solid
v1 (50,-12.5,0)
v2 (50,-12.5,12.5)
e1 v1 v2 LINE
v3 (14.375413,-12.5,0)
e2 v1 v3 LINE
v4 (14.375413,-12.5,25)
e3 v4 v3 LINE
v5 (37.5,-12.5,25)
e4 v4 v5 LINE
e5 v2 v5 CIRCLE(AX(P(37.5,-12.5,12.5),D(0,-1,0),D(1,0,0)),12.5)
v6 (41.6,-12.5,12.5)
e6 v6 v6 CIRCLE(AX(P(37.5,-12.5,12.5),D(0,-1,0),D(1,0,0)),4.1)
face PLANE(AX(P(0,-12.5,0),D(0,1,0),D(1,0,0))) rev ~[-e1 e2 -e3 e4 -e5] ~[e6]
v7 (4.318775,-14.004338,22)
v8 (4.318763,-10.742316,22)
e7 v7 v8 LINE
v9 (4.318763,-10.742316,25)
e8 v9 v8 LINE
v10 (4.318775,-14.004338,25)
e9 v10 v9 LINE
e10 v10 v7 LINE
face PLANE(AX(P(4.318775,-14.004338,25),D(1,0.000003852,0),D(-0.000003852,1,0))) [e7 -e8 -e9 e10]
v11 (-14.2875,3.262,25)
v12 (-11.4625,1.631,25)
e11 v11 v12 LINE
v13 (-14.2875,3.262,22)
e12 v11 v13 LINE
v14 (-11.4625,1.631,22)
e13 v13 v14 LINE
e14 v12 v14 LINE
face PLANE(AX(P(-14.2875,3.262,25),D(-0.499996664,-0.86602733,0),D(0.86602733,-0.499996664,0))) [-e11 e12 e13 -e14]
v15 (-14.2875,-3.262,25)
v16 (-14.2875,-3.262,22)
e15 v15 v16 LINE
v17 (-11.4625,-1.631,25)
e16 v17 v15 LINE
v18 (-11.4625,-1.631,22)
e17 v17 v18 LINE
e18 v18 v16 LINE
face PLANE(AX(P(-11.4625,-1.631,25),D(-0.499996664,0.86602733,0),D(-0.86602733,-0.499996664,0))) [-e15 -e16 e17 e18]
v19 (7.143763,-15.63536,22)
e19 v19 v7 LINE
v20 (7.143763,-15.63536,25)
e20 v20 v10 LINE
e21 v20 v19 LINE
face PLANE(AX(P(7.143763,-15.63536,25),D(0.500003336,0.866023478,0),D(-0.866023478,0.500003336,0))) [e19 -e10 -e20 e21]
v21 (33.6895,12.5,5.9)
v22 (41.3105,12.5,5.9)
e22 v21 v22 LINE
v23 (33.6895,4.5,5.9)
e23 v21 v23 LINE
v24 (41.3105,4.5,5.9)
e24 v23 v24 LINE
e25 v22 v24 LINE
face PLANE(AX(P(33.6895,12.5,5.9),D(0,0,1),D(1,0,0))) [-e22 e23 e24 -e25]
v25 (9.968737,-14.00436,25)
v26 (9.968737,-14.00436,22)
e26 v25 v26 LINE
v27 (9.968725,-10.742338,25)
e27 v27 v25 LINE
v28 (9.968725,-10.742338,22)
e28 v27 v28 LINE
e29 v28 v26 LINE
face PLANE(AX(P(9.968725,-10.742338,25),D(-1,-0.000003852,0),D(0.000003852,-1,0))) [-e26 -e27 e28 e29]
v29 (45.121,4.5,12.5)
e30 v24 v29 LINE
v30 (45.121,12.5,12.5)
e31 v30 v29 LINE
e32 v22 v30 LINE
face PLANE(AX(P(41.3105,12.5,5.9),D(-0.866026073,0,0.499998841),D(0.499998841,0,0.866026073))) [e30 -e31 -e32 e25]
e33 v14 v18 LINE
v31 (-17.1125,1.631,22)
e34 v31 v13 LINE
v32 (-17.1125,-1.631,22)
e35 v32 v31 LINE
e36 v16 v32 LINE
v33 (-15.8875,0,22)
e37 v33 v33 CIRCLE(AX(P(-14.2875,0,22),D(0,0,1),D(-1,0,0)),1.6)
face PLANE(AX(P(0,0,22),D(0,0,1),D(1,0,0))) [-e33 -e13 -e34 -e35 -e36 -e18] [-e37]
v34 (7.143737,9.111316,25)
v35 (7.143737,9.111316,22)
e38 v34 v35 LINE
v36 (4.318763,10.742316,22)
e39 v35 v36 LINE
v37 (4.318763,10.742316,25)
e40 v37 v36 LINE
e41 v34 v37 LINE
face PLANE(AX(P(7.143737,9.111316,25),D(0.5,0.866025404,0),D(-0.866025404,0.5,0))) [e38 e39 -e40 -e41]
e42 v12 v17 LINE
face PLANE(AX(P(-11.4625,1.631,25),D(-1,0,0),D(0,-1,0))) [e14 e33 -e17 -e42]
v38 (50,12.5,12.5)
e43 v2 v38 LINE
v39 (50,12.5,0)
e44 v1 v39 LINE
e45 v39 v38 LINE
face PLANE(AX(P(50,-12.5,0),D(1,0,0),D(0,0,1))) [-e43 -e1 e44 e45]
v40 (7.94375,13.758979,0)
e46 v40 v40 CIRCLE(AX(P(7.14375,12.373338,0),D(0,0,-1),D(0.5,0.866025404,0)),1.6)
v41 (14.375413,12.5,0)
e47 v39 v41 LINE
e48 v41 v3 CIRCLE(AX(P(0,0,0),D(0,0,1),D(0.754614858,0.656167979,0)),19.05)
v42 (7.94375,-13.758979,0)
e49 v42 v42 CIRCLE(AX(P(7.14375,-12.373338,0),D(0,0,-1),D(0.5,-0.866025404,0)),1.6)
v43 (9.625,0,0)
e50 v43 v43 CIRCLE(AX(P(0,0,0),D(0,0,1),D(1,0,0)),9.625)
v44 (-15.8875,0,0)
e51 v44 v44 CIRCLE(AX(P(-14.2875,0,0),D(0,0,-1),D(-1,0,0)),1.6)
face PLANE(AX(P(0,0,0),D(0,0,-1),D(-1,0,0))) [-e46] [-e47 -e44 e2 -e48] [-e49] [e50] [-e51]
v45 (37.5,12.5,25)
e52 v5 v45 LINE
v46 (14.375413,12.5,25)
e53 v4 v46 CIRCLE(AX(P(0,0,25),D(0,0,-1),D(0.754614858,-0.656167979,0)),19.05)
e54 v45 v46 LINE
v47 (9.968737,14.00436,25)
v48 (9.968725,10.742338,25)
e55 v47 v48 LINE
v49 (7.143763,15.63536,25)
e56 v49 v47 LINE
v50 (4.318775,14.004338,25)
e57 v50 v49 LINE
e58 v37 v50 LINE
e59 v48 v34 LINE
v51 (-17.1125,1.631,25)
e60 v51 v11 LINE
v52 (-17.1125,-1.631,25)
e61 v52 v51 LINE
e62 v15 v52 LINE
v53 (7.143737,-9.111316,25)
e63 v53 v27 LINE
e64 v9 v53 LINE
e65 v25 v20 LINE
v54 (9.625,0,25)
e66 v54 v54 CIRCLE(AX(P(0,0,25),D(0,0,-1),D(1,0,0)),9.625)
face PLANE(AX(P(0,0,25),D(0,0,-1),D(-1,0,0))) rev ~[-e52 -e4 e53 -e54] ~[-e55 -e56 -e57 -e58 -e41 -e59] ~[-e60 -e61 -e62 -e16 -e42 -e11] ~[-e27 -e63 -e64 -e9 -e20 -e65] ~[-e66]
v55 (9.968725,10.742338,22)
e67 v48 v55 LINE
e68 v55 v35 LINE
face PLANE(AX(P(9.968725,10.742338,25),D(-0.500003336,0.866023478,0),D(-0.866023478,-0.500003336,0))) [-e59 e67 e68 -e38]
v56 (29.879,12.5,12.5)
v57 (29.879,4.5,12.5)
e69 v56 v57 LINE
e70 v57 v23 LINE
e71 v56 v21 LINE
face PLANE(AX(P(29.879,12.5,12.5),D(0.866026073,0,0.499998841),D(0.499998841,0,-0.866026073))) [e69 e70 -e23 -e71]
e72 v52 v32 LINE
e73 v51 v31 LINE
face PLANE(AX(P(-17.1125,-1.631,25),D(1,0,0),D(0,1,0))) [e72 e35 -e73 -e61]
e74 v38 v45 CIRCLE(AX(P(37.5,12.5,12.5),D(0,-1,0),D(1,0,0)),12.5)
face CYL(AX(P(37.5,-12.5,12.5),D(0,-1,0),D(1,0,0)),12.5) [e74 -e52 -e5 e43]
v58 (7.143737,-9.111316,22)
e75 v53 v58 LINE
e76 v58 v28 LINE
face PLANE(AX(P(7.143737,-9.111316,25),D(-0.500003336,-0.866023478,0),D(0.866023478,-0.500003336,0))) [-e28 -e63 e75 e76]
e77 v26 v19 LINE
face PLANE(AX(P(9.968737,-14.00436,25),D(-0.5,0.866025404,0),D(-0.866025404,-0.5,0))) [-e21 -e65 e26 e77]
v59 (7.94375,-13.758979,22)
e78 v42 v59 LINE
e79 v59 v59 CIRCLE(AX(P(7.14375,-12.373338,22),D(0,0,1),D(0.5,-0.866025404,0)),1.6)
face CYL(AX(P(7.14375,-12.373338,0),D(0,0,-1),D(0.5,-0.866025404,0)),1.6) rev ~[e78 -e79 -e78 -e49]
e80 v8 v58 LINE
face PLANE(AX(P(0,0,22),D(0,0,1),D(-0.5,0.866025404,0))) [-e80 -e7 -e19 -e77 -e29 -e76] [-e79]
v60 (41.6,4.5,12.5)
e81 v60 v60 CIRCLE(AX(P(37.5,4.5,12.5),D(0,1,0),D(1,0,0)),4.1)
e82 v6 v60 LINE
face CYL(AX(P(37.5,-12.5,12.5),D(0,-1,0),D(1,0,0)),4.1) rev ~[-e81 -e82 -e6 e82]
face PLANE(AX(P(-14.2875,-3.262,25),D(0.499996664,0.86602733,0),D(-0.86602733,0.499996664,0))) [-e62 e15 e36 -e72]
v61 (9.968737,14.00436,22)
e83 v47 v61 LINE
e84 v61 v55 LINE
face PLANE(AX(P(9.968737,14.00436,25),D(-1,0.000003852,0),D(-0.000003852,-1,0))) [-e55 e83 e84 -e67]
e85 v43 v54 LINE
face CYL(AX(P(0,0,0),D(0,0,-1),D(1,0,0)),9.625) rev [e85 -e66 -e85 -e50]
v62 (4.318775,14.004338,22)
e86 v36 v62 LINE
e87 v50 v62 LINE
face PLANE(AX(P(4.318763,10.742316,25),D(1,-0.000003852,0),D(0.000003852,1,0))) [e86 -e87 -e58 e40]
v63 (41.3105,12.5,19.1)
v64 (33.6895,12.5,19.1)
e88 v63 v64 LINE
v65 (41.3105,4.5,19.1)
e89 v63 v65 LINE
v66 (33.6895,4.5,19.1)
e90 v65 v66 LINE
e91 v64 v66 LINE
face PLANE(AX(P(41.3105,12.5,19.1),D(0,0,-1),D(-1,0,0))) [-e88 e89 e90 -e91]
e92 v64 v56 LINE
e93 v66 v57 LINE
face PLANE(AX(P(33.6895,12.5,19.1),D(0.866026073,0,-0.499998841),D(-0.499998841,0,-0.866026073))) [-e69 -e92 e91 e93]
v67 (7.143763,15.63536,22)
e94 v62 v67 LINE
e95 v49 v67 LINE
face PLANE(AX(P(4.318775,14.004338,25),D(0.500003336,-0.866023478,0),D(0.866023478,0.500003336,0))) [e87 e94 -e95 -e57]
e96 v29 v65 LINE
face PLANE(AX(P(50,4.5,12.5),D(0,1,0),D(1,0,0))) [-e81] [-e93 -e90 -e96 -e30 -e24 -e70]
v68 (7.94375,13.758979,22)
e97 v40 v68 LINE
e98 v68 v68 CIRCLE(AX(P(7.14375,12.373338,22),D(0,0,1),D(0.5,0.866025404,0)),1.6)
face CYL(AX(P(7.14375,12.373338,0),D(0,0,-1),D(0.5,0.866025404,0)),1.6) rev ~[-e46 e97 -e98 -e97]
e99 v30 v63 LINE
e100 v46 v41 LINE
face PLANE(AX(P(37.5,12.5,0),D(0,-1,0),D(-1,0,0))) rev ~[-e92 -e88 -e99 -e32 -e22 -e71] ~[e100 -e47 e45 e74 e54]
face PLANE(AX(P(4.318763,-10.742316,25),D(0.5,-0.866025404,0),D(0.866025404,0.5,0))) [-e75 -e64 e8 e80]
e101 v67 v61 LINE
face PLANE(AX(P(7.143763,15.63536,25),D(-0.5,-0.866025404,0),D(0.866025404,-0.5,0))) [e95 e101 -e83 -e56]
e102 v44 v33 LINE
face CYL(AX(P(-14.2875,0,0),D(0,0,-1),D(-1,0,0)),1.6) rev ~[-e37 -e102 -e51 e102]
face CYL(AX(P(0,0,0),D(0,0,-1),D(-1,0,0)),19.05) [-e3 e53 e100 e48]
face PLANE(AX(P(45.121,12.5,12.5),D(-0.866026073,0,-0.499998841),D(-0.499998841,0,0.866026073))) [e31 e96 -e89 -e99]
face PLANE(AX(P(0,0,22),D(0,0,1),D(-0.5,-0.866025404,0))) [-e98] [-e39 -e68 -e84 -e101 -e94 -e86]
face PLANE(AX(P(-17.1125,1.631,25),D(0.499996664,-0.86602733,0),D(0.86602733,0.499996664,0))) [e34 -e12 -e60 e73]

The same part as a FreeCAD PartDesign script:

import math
import FreeCAD as App
import Part
import Sketcher

V = App.Vector
Q = App.Units.Quantity

doc = App.newDocument("Part")
body = doc.addObject("PartDesign::Body", "Body")

# Sketch on XY plane
sketch1 = body.newObject("Sketcher::SketchObject", "Sketch")
sketch1.AttachmentSupport = (doc.getObject("XY_Plane"), [""])
sketch1.MapMode = "FlatFace"
sketch1.addGeometry([
    Part.LineSegment(V(37.5, 12.5, 0), V(0, 12.5, 0)),  # 0
    Part.ArcOfCircle(Part.Circle(V(0, 0, 0), V(0, 0, 1), 12.5), math.radians(90), math.radians(270)),  # 1
    Part.LineSegment(V(0, -12.5, 0), V(37.5, -12.5, 0)),  # 2
    Part.LineSegment(V(37.5, -12.5, 0), V(37.5, 12.5, 0)),  # 3
    Part.Circle(V(0, 0, 0), V(0, 0, 1), 9.625),  # 4
], False)
sketch1.addConstraint([
    Sketcher.Constraint("Tangent", 0, 2, 1, 1),
    Sketcher.Constraint("Tangent", 1, 2, 2, 1),
    Sketcher.Constraint("Coincident", 2, 2, 3, 1),
    Sketcher.Constraint("Coincident", 3, 2, 0, 1),
    Sketcher.Constraint("Horizontal", 0),
    Sketcher.Constraint("Horizontal", 2),
    Sketcher.Constraint("Vertical", 3),
    Sketcher.Constraint("Coincident", 1, 3, -1, 1),
    Sketcher.Constraint("Coincident", 4, 3, -1, 1),
    Sketcher.Constraint("Radius", 1, 12.5),
    Sketcher.Constraint("Diameter", 4, 19.25),
    Sketcher.Constraint("DistanceX", 0, 2, 0, 1, 37.5),
])
pad1 = body.newObject("PartDesign::Pad", "Pad")
pad1.Profile = sketch1
pad1.Length = 25

# Sketch on XZ plane
sketch2 = body.newObject("Sketcher::SketchObject", "Sketch001")
sketch2.AttachmentSupport = (doc.getObject("XZ_Plane"), [""])
sketch2.MapMode = "FlatFace"
sketch2.AttachmentOffset = App.Placement(V(0, 0, 12.5), App.Rotation())
sketch2.addGeometry([
    Part.LineSegment(V(37.5, 25, 0), V(37.5, 0, 0)),
    Part.LineSegment(V(37.5, 0, 0), V(50, 0, 0)),
    Part.LineSegment(V(50, 0, 0), V(50, 12.5, 0)),
    Part.ArcOfCircle(Part.Circle(V(37.5, 12.5, 0), V(0, 0, 1), 12.5), math.radians(0), math.radians(90)),
], False)
sketch2.addConstraint([
    Sketcher.Constraint("Coincident", 0, 2, 1, 1),
    Sketcher.Constraint("Coincident", 1, 2, 2, 1),
    Sketcher.Constraint("Tangent", 2, 2, 3, 1),
    Sketcher.Constraint("Coincident", 3, 2, 0, 1),
    Sketcher.Constraint("Vertical", 0),
    Sketcher.Constraint("Horizontal", 1),
    Sketcher.Constraint("Vertical", 2),
    Sketcher.Constraint("PointOnObject", 0, 2, -1),
    Sketcher.Constraint("Vertical", 3, 3, 0, 2),
    Sketcher.Constraint("Equal", 1, 2),
    Sketcher.Constraint("Radius", 3, 12.5),
    Sketcher.Constraint("DistanceX", -1, 1, 1, 2, 50.0),
])
pad2 = body.newObject("PartDesign::Pad", "Pad001")
pad2.Profile = sketch2
pad2.Length = 25
pad2.Reversed = True

# Sketch on XZ plane
sketch3 = body.newObject("Sketcher::SketchObject", "Sketch002")
sketch3.AttachmentSupport = (doc.getObject("XZ_Plane"), [""])
sketch3.MapMode = "FlatFace"
sketch3.AttachmentOffset = App.Placement(V(0, 0, 12.5), App.Rotation())
sketch3.addGeometry(Part.Circle(V(37.5, 12.5, 0), V(0, 0, 1), 4.1), False)
sketch3.addConstraint([
    Sketcher.Constraint("Diameter", 0, 8.2),
    Sketcher.Constraint("DistanceX", -1, 1, 0, 3, 37.5),
    Sketcher.Constraint("DistanceY", -1, 1, 0, 3, 12.5),
])
pocket1 = body.newObject("PartDesign::Pocket", "Pocket")
pocket1.Profile = sketch3
pocket1.Type = "ThroughAll"

# Sketch on XZ plane
sketch4 = body.newObject("Sketcher::SketchObject", "Sketch003")
sketch4.AttachmentSupport = (doc.getObject("XZ_Plane"), [""])
sketch4.MapMode = "FlatFace"
sketch4.AttachmentOffset = App.Placement(V(0, 0, -12.5), App.Rotation())
sketch4.addGeometry([
    Part.LineSegment(V(33.6895, 5.9, 0), V(29.879, 12.5, 0)),  # 0
    Part.LineSegment(V(29.879, 12.5, 0), V(33.6895, 19.1, 0)),  # 1
    Part.LineSegment(V(33.6895, 19.1, 0), V(41.3105, 19.1, 0)),  # 2
    Part.LineSegment(V(41.3105, 19.1, 0), V(45.121, 12.5, 0)),  # 3
    Part.LineSegment(V(45.121, 12.5, 0), V(41.3105, 5.9, 0)),  # 4
    Part.LineSegment(V(41.3105, 5.9, 0), V(33.6895, 5.9, 0)),  # 5
    Part.Circle(V(37.5, 12.5, 0), V(0, 0, 1), 4.1),  # 6
], False)
sketch4.addConstraint([
    Sketcher.Constraint("Coincident", 0, 2, 1, 1),
    Sketcher.Constraint("Coincident", 1, 2, 2, 1),
    Sketcher.Constraint("Coincident", 2, 2, 3, 1),
    Sketcher.Constraint("Coincident", 3, 2, 4, 1),
    Sketcher.Constraint("Coincident", 4, 2, 5, 1),
    Sketcher.Constraint("Coincident", 5, 2, 0, 1),
    Sketcher.Constraint("Horizontal", 2),
    Sketcher.Constraint("Horizontal", 5),
    Sketcher.Constraint("Parallel", 0, 3),
    Sketcher.Constraint("Parallel", 1, 4),
    Sketcher.Constraint("Horizontal", 6, 3, 0, 2),
    Sketcher.Constraint("Horizontal", 0, 2, 3, 2),
    Sketcher.Constraint("Vertical", 2, 2, 4, 2),
    Sketcher.Constraint("Vertical", 1, 2, 5, 2),
    Sketcher.Constraint("Diameter", 6, 8.2),
    Sketcher.Constraint("DistanceY", 4, 2, 2, 2, 13.2),
    Sketcher.Constraint("Angle", 0, Q("120 deg")),
    Sketcher.Constraint("DistanceX", -1, 1, 6, 3, 37.5),
    Sketcher.Constraint("DistanceY", -1, 1, 6, 3, 12.5),
    Sketcher.Constraint("DistanceX", 2, 1, 2, 2, 7.621),
    Sketcher.Constraint("DistanceX", -1, 1, 0, 2, 29.879),
])
pocket2 = body.newObject("PartDesign::Pocket", "Pocket001")
pocket2.Profile = sketch4
pocket2.Length = 8
pocket2.Reversed = True

# Sketch on XY plane
sketch5 = body.newObject("Sketcher::SketchObject", "Sketch004")
sketch5.AttachmentSupport = (doc.getObject("XY_Plane"), [""])
sketch5.MapMode = "FlatFace"
sketch5.addGeometry([
    Part.Circle(V(0, 0, 0), V(0, 0, 1), 19.05),
    Part.Circle(V(0, 0, 0), V(0, 0, 1), 9.625),
], False)
sketch5.addConstraint([
    Sketcher.Constraint("Coincident", 0, 3, -1, 1),
    Sketcher.Constraint("Coincident", 1, 3, -1, 1),
    Sketcher.Constraint("Diameter", 0, 38.1),
    Sketcher.Constraint("Diameter", 1, 19.25),
])
pad3 = body.newObject("PartDesign::Pad", "Pad002")
pad3.Profile = sketch5
pad3.Length = 25

# Sketch on XY plane
sketch6 = body.newObject("Sketcher::SketchObject", "Sketch005")
sketch6.AttachmentSupport = (doc.getObject("XY_Plane"), [""])
sketch6.MapMode = "FlatFace"
sketch6.addGeometry(Part.Circle(V(-14.2875, 0, 0), V(0, 0, 1), 1.6), False)
sketch6.addConstraint([
    Sketcher.Constraint("PointOnObject", 0, 3, -1),
    Sketcher.Constraint("Diameter", 0, 3.2),
    Sketcher.Constraint("DistanceX", 0, 3, -1, 1, 14.2875),
])
pocket3 = body.newObject("PartDesign::Pocket", "Pocket002")
pocket3.Profile = sketch6
pocket3.Type = "ThroughAll"
pocket3.Reversed = True

# Sketch on XY plane
sketch7 = body.newObject("Sketcher::SketchObject", "Sketch006")
sketch7.AttachmentSupport = (doc.getObject("XY_Plane"), [""])
sketch7.MapMode = "FlatFace"
sketch7.AttachmentOffset = App.Placement(V(0, 0, 25), App.Rotation())
sketch7.addGeometry([
    Part.LineSegment(V(-11.4625, 1.631, 0), V(-14.2875, 3.262, 0)),  # 0
    Part.LineSegment(V(-14.2875, 3.262, 0), V(-17.1125, 1.631, 0)),  # 1
    Part.LineSegment(V(-17.1125, 1.631, 0), V(-17.1125, -1.631, 0)),  # 2
    Part.LineSegment(V(-17.1125, -1.631, 0), V(-14.2875, -3.262, 0)),  # 3
    Part.LineSegment(V(-14.2875, -3.262, 0), V(-11.4625, -1.631, 0)),  # 4
    Part.LineSegment(V(-11.4625, -1.631, 0), V(-11.4625, 1.631, 0)),  # 5
    Part.Circle(V(-14.2875, 0, 0), V(0, 0, 1), 1.6),  # 6
], False)
sketch7.addConstraint([
    Sketcher.Constraint("Coincident", 0, 2, 1, 1),
    Sketcher.Constraint("Coincident", 1, 2, 2, 1),
    Sketcher.Constraint("Coincident", 2, 2, 3, 1),
    Sketcher.Constraint("Coincident", 3, 2, 4, 1),
    Sketcher.Constraint("Coincident", 4, 2, 5, 1),
    Sketcher.Constraint("Coincident", 5, 2, 0, 1),
    Sketcher.Constraint("Vertical", 2),
    Sketcher.Constraint("Vertical", 5),
    Sketcher.Constraint("Symmetric", 0, 2, 3, 2, -1),
    Sketcher.Constraint("PointOnObject", 6, 3, -1),
    Sketcher.Constraint("Parallel", 0, 3),
    Sketcher.Constraint("Parallel", 1, 4),
    Sketcher.Constraint("Horizontal", 2, 2, 4, 2),
    Sketcher.Constraint("Horizontal", 1, 2, 5, 2),
    Sketcher.Constraint("Vertical", 6, 3, 0, 2),
    Sketcher.Constraint("Diameter", 6, 3.2),
    Sketcher.Constraint("Angle", 0, Q("150.0002 deg")),
    Sketcher.Constraint("DistanceX", 2, 2, 4, 2, 5.65),
    Sketcher.Constraint("DistanceY", 2, 2, 2, 1, 3.262),
    Sketcher.Constraint("DistanceX", 6, 3, -1, 1, 14.2875),
])
pocket4 = body.newObject("PartDesign::Pocket", "Pocket003")
pocket4.Profile = sketch7
pocket4.Length = 3
doc.recompute()

polarpattern = body.newObject("PartDesign::PolarPattern", "PolarPattern")
polarpattern.Originals = [pocket4, pocket3]
polarpattern.Axis = (doc.getObject("Z_Axis"), [""])
polarpattern.Angle = 360
polarpattern.Occurrences = 3
body.Tip = polarpattern

doc.recompute()
